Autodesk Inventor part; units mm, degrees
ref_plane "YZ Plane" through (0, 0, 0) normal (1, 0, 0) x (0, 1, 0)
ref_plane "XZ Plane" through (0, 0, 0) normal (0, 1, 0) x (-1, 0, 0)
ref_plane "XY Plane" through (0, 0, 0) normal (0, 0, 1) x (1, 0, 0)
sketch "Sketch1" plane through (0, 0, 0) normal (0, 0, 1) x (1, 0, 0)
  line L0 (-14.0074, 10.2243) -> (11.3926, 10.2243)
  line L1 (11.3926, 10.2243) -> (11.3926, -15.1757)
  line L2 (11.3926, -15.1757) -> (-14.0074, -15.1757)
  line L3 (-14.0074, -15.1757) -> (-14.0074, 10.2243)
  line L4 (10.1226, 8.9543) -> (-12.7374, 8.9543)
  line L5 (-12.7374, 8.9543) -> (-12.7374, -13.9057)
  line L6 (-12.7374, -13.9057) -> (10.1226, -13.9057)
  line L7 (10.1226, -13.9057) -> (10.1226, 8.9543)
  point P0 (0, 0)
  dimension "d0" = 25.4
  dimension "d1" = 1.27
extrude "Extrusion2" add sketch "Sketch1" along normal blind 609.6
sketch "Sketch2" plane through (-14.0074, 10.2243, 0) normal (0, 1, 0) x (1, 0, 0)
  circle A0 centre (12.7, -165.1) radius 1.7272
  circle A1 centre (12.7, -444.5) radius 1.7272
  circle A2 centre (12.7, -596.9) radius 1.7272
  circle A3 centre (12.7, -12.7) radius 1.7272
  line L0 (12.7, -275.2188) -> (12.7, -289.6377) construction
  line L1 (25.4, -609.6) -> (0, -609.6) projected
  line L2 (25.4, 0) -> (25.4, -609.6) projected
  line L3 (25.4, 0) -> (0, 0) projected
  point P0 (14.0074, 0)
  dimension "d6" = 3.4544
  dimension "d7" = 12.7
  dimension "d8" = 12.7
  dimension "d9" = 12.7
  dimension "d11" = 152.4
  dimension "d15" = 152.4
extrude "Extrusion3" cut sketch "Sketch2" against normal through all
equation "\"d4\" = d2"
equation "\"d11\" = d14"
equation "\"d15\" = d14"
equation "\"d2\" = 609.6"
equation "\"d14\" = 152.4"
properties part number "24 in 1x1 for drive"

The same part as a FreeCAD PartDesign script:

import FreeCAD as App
import Part
import Sketcher
Q = App.Units.Quantity


def add_polygon(sketch, points):
    """Adds a closed chain of lines whose ends are joined by coincident constraints."""
    first, n = sketch.GeometryCount, len(points)
    for a, b in zip(points, points[1:] + points[:1]):
        sketch.addGeometry(Part.LineSegment(App.Vector(*a, 0), App.Vector(*b, 0)), False)
    for i in range(n):
        sketch.addConstraint(Sketcher.Constraint("Coincident", first + i, 2, first + (i + 1) % n, 1))

doc = App.newDocument("Part")
body = doc.addObject("PartDesign::Body", "Body")

# Sketch on XY plane
sketch1 = doc.addObject("Sketcher::SketchObject", "Sketch")
body.addObject(sketch1)
sketch1.AttachmentSupport = (doc.XY_Plane, [""])
sketch1.MapMode = "FlatFace"
add_polygon(sketch1, [(11.3926, 10.2243), (-14.0074, 10.2243), (-14.0074, -15.1757), (11.3926, -15.1757)])  # lines 0-3
add_polygon(sketch1, [(-12.7374, 8.9543), (10.1226, 8.9543), (10.1226, -13.9057), (-12.7374, -13.9057)])  # lines 4-7
sketch1.addConstraint(Sketcher.Constraint("Horizontal", 0))
sketch1.addConstraint(Sketcher.Constraint("Vertical", 1))
sketch1.addConstraint(Sketcher.Constraint("Horizontal", 2))
sketch1.addConstraint(Sketcher.Constraint("Vertical", 3))
sketch1.addConstraint(Sketcher.Constraint("Horizontal", 4))
sketch1.addConstraint(Sketcher.Constraint("Vertical", 5))
sketch1.addConstraint(Sketcher.Constraint("Horizontal", 6))
sketch1.addConstraint(Sketcher.Constraint("Vertical", 7))
sketch1.addConstraint(Sketcher.Constraint("Equal", 2, 1))
sketch1.addConstraint(Sketcher.Constraint("Equal", 6, 5))
sketch1.addConstraint(Sketcher.Constraint("DistanceX", 0, 2, 0, 1, Q("1 in")))
sketch1.addConstraint(Sketcher.Constraint("DistanceX", 4, 2, 3, 2, Q("0.05 in")))
sketch1.addConstraint(Sketcher.Constraint("DistanceY", 4, 2, 3, 2, Q("0.05 in")))
sketch1.addConstraint(Sketcher.Constraint("DistanceY", 2, 2, 5, 2, Q("0.05 in")))
sketch1.addConstraint(Sketcher.Constraint("DistanceX", 0, 2, -1, 1, 14.0074))
sketch1.addConstraint(Sketcher.Constraint("DistanceY", -1, 1, 0, 2, 10.2243))
pad1 = doc.addObject("PartDesign::Pad", "Pad")
body.addObject(pad1)
pad1.Profile = sketch1
pad1.Length = Q("24 in")

# Sketch on XZ plane
sketch2 = doc.addObject("Sketcher::SketchObject", "Sketch001")
body.addObject(sketch2)
sketch2.AttachmentSupport = (doc.XZ_Plane, [""])
sketch2.MapMode = "FlatFace"
sketch2.AttachmentOffset = App.Placement(App.Vector(0, 0, -10.2243), App.Rotation())
sketch2.addGeometry(Part.Circle(App.Vector(-1.3074, 165.1, 0), App.Vector(0, 0, 1), 1.7272), False)
sketch2.addGeometry(Part.Circle(App.Vector(-1.3074, 444.5, 0), App.Vector(0, 0, 1), 1.7272), False)
sketch2.addGeometry(Part.Circle(App.Vector(-1.3074, 596.9, 0), App.Vector(0, 0, 1), 1.7272), False)
sketch2.addGeometry(Part.Circle(App.Vector(-1.3074, 12.7, 0), App.Vector(0, 0, 1), 1.7272), False)
sketch2.addConstraint(Sketcher.Constraint("Equal", 0, 1))
sketch2.addConstraint(Sketcher.Constraint("Equal", 1, 2))
sketch2.addConstraint(Sketcher.Constraint("Equal", 2, 3))
sketch2.addConstraint(Sketcher.Constraint("Vertical", 0, 3, 1, 3))
sketch2.addConstraint(Sketcher.Constraint("Vertical", 1, 3, 2, 3))
sketch2.addConstraint(Sketcher.Constraint("Vertical", 2, 3, 3, 3))
sketch2.addConstraint(Sketcher.Constraint("Diameter", 0, Q("0.136 in")))
sketch2.addConstraint(Sketcher.Constraint("DistanceY", 1, 3, 2, 3, Q("6 in")))
sketch2.addConstraint(Sketcher.Constraint("DistanceY", 3, 3, 0, 3, Q("6 in")))
sketch2.addConstraint(Sketcher.Constraint("DistanceY", -1, 1, 3, 3, Q("0.5 in")))
sketch2.addConstraint(Sketcher.Constraint("DistanceY", 0, 3, 1, 3, Q("11 in")))
sketch2.addConstraint(Sketcher.Constraint("DistanceX", 0, 3, -1, 1, 1.3074))
pocket1 = doc.addObject("PartDesign::Pocket", "Pocket")
body.addObject(pocket1)
pocket1.Profile = sketch2
pocket1.Type = "ThroughAll"
pocket1.Reversed = True

doc.recompute()
